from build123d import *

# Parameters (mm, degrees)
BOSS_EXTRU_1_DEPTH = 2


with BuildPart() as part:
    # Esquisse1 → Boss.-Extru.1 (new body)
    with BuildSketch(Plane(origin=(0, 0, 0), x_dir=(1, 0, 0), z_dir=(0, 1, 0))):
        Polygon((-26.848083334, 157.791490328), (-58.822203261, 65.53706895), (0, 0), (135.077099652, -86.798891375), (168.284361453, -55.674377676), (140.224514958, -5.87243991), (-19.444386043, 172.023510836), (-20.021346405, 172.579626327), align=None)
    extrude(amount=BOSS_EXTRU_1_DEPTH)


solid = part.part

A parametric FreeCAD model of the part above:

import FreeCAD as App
import Part
import Sketcher
Q = App.Units.Quantity


def add_polygon(sketch, points):
    """Adds a closed chain of lines whose ends are joined by coincident constraints."""
    first, n = sketch.GeometryCount, len(points)
    for a, b in zip(points, points[1:] + points[:1]):
        sketch.addGeometry(Part.LineSegment(App.Vector(*a, 0), App.Vector(*b, 0)), False)
    for i in range(n):
        sketch.addConstraint(Sketcher.Constraint("Coincident", first + i, 2, first + (i + 1) % n, 1))

doc = App.newDocument("Part")
body = doc.addObject("PartDesign::Body", "Body")

# Sketch on XZ plane
sketch1 = body.newObject("Sketcher::SketchObject", "Sketch")
sketch1.AttachmentSupport = (doc.getObject("XZ_Plane"), [""])
sketch1.MapMode = "FlatFace"
add_polygon(sketch1, [(-26.8, -157.8), (-58.8, -65.5), (0, 0), (135.1, 86.8), (168.3, 55.7), (140.2, 5.9), (-19.4, -172), (-20, -172.6)])  # lines 0-7
sketch1.addConstraint([
    Sketcher.Constraint("Coincident", 1, 2, -1, 1),
    Sketcher.Constraint("Parallel", 1, 5),
    Sketcher.Constraint("DistanceX", -1, 1, 2, 2, Q("135.0771 mm")),
    Sketcher.Constraint("DistanceX", 5, 2, 4, 2, Q("159.668901 mm")),
    Sketcher.Constraint("DistanceX", 7, 2, 4, 2, Q("167.072598 mm")),
    Sketcher.Constraint("Distance", 1, Q("88.063381 mm")),
    Sketcher.Constraint("Distance", 2, Q("160.561111 mm")),
    Sketcher.Constraint("Distance", 3, Q("45.513268 mm")),
    Sketcher.Constraint("Distance", 4, Q("57.16282 mm")),
    Sketcher.Constraint("Distance", 6, Q("0.801341 mm")),
    Sketcher.Constraint("DistanceY", 0, 2, -1, 1, Q("65.537069 mm")),
    Sketcher.Constraint("DistanceX", -1, 1, 3, 2, Q("168.284361 mm")),
    Sketcher.Constraint("DistanceY", -1, 1, 4, 2, Q("5.87244 mm")),
    Sketcher.Constraint("DistanceY", 7, 2, -1, 1, Q("157.79149 mm")),
    Sketcher.Constraint("DistanceX", 6, 2, 5, 2, Q("0.57696 mm")),
])
pad1 = body.newObject("PartDesign::Pad", "Pad")
pad1.Profile = sketch1
pad1.Length = 2
pad1.Reversed = True

doc.recompute()
